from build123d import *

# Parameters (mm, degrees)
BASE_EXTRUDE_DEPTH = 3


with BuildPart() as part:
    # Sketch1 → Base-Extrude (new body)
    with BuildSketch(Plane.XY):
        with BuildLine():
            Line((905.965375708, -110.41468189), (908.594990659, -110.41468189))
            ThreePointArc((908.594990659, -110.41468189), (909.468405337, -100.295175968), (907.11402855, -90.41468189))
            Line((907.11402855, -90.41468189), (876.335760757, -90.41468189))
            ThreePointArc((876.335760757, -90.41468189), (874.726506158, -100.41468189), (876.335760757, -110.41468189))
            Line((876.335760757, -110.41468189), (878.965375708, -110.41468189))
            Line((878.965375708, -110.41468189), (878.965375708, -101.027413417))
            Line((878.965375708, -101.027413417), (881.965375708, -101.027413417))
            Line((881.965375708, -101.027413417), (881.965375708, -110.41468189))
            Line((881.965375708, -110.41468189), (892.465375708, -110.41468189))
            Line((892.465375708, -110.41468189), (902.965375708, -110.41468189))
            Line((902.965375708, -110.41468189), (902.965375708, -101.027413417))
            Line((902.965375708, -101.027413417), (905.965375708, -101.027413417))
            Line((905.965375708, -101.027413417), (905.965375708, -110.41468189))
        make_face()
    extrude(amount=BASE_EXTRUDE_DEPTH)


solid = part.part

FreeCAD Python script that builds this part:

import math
import FreeCAD as App
import Part
import Sketcher

V = App.Vector
Q = App.Units.Quantity

doc = App.newDocument("Part")
body = doc.addObject("PartDesign::Body", "Body")

sketch1 = body.newObject("Sketcher::SketchObject", "Sketch")
sketch1.AttachmentSupport = (doc.getObject("XY_Plane"), [""])
sketch1.MapMode = "FlatFace"
sketch1.addGeometry([
    Part.LineSegment(V(906, -110.4, 0), V(908.6, -110.4, 0)),
    Part.ArcOfCircle(Part.Circle(V(877.7, -102.6, 0), V(0, 0, 1), 31.9), math.radians(-14), math.radians(23)),
    Part.LineSegment(V(907.1, -90.4, 0), V(876.3, -90.4, 0)),
    Part.ArcOfCircle(Part.Circle(V(906.6, -100.4, 0), V(0, 0, 1), 31.9), math.radians(162), math.radians(198)),
    Part.LineSegment(V(876.3, -110.4, 0), V(879, -110.4, 0)),
    Part.LineSegment(V(879, -110.4, 0), V(879, -101, 0)),
    Part.LineSegment(V(879, -101, 0), V(882, -101, 0)),
    Part.LineSegment(V(882, -101, 0), V(882, -110.4, 0)),
    Part.LineSegment(V(882, -110.4, 0), V(903, -110.4, 0)),
    Part.LineSegment(V(903, -110.4, 0), V(903, -101, 0)),
    Part.LineSegment(V(903, -101, 0), V(906, -101, 0)),
    Part.LineSegment(V(906, -101, 0), V(906, -110.4, 0)),
], False)
sketch1.addConstraint([
    Sketcher.Constraint("Coincident", 0, 2, 1, 1),
    Sketcher.Constraint("Coincident", 1, 2, 2, 1),
    Sketcher.Constraint("Coincident", 2, 2, 3, 1),
    Sketcher.Constraint("Coincident", 3, 2, 4, 1),
    Sketcher.Constraint("Coincident", 4, 2, 5, 1),
    Sketcher.Constraint("Coincident", 5, 2, 6, 1),
    Sketcher.Constraint("Coincident", 6, 2, 7, 1),
    Sketcher.Constraint("Coincident", 7, 2, 8, 1),
    Sketcher.Constraint("Coincident", 8, 2, 9, 1),
    Sketcher.Constraint("Coincident", 9, 2, 10, 1),
    Sketcher.Constraint("Coincident", 10, 2, 11, 1),
    Sketcher.Constraint("Coincident", 11, 2, 0, 1),
    Sketcher.Constraint("Horizontal", 0),
    Sketcher.Constraint("Horizontal", 2),
    Sketcher.Constraint("Horizontal", 4),
    Sketcher.Constraint("Vertical", 5),
    Sketcher.Constraint("Horizontal", 6),
    Sketcher.Constraint("Vertical", 7),
    Sketcher.Constraint("Horizontal", 8),
    Sketcher.Constraint("Vertical", 9),
    Sketcher.Constraint("Horizontal", 10),
    Sketcher.Constraint("Vertical", 11),
    Sketcher.Constraint("Equal", 1, 3),
    Sketcher.Constraint("Horizontal", 0, 2, 3, 2),
    Sketcher.Constraint("Horizontal", 4, 2, 7, 2),
    Sketcher.Constraint("Horizontal", 6, 2, 9, 2),
    Sketcher.Constraint("Vertical", 2, 2, 3, 2),
    Sketcher.Constraint("Equal", 0, 4),
    Sketcher.Constraint("Equal", 6, 10),
    Sketcher.Constraint("DistanceX", 6, 1, 6, 2, Q("3 mm")),
    Sketcher.Constraint("DistanceX", 8, 1, 8, 2, Q("21 mm")),
    Sketcher.Constraint("DistanceY", 0, 2, 3, 3, Q("10 mm")),
    Sketcher.Constraint("Radius", 1, Q("31.874913 mm")),
    Sketcher.Constraint("DistanceY", 5, 1, 5, 2, Q("9.387268 mm")),
    Sketcher.Constraint("DistanceX", 0, 1, 0, 2, Q("2.629615 mm")),
    Sketcher.Constraint("DistanceX", 2, 2, 2, 1, Q("30.778268 mm")),
    Sketcher.Constraint("DistanceX", -1, 1, 1, 3, Q("877.680522 mm")),
    Sketcher.Constraint("DistanceY", 1, 3, -1, 1, Q("102.649009 mm")),
])
pad1 = body.newObject("PartDesign::Pad", "Pad")
pad1.Profile = sketch1
pad1.Length = 3

doc.recompute()
